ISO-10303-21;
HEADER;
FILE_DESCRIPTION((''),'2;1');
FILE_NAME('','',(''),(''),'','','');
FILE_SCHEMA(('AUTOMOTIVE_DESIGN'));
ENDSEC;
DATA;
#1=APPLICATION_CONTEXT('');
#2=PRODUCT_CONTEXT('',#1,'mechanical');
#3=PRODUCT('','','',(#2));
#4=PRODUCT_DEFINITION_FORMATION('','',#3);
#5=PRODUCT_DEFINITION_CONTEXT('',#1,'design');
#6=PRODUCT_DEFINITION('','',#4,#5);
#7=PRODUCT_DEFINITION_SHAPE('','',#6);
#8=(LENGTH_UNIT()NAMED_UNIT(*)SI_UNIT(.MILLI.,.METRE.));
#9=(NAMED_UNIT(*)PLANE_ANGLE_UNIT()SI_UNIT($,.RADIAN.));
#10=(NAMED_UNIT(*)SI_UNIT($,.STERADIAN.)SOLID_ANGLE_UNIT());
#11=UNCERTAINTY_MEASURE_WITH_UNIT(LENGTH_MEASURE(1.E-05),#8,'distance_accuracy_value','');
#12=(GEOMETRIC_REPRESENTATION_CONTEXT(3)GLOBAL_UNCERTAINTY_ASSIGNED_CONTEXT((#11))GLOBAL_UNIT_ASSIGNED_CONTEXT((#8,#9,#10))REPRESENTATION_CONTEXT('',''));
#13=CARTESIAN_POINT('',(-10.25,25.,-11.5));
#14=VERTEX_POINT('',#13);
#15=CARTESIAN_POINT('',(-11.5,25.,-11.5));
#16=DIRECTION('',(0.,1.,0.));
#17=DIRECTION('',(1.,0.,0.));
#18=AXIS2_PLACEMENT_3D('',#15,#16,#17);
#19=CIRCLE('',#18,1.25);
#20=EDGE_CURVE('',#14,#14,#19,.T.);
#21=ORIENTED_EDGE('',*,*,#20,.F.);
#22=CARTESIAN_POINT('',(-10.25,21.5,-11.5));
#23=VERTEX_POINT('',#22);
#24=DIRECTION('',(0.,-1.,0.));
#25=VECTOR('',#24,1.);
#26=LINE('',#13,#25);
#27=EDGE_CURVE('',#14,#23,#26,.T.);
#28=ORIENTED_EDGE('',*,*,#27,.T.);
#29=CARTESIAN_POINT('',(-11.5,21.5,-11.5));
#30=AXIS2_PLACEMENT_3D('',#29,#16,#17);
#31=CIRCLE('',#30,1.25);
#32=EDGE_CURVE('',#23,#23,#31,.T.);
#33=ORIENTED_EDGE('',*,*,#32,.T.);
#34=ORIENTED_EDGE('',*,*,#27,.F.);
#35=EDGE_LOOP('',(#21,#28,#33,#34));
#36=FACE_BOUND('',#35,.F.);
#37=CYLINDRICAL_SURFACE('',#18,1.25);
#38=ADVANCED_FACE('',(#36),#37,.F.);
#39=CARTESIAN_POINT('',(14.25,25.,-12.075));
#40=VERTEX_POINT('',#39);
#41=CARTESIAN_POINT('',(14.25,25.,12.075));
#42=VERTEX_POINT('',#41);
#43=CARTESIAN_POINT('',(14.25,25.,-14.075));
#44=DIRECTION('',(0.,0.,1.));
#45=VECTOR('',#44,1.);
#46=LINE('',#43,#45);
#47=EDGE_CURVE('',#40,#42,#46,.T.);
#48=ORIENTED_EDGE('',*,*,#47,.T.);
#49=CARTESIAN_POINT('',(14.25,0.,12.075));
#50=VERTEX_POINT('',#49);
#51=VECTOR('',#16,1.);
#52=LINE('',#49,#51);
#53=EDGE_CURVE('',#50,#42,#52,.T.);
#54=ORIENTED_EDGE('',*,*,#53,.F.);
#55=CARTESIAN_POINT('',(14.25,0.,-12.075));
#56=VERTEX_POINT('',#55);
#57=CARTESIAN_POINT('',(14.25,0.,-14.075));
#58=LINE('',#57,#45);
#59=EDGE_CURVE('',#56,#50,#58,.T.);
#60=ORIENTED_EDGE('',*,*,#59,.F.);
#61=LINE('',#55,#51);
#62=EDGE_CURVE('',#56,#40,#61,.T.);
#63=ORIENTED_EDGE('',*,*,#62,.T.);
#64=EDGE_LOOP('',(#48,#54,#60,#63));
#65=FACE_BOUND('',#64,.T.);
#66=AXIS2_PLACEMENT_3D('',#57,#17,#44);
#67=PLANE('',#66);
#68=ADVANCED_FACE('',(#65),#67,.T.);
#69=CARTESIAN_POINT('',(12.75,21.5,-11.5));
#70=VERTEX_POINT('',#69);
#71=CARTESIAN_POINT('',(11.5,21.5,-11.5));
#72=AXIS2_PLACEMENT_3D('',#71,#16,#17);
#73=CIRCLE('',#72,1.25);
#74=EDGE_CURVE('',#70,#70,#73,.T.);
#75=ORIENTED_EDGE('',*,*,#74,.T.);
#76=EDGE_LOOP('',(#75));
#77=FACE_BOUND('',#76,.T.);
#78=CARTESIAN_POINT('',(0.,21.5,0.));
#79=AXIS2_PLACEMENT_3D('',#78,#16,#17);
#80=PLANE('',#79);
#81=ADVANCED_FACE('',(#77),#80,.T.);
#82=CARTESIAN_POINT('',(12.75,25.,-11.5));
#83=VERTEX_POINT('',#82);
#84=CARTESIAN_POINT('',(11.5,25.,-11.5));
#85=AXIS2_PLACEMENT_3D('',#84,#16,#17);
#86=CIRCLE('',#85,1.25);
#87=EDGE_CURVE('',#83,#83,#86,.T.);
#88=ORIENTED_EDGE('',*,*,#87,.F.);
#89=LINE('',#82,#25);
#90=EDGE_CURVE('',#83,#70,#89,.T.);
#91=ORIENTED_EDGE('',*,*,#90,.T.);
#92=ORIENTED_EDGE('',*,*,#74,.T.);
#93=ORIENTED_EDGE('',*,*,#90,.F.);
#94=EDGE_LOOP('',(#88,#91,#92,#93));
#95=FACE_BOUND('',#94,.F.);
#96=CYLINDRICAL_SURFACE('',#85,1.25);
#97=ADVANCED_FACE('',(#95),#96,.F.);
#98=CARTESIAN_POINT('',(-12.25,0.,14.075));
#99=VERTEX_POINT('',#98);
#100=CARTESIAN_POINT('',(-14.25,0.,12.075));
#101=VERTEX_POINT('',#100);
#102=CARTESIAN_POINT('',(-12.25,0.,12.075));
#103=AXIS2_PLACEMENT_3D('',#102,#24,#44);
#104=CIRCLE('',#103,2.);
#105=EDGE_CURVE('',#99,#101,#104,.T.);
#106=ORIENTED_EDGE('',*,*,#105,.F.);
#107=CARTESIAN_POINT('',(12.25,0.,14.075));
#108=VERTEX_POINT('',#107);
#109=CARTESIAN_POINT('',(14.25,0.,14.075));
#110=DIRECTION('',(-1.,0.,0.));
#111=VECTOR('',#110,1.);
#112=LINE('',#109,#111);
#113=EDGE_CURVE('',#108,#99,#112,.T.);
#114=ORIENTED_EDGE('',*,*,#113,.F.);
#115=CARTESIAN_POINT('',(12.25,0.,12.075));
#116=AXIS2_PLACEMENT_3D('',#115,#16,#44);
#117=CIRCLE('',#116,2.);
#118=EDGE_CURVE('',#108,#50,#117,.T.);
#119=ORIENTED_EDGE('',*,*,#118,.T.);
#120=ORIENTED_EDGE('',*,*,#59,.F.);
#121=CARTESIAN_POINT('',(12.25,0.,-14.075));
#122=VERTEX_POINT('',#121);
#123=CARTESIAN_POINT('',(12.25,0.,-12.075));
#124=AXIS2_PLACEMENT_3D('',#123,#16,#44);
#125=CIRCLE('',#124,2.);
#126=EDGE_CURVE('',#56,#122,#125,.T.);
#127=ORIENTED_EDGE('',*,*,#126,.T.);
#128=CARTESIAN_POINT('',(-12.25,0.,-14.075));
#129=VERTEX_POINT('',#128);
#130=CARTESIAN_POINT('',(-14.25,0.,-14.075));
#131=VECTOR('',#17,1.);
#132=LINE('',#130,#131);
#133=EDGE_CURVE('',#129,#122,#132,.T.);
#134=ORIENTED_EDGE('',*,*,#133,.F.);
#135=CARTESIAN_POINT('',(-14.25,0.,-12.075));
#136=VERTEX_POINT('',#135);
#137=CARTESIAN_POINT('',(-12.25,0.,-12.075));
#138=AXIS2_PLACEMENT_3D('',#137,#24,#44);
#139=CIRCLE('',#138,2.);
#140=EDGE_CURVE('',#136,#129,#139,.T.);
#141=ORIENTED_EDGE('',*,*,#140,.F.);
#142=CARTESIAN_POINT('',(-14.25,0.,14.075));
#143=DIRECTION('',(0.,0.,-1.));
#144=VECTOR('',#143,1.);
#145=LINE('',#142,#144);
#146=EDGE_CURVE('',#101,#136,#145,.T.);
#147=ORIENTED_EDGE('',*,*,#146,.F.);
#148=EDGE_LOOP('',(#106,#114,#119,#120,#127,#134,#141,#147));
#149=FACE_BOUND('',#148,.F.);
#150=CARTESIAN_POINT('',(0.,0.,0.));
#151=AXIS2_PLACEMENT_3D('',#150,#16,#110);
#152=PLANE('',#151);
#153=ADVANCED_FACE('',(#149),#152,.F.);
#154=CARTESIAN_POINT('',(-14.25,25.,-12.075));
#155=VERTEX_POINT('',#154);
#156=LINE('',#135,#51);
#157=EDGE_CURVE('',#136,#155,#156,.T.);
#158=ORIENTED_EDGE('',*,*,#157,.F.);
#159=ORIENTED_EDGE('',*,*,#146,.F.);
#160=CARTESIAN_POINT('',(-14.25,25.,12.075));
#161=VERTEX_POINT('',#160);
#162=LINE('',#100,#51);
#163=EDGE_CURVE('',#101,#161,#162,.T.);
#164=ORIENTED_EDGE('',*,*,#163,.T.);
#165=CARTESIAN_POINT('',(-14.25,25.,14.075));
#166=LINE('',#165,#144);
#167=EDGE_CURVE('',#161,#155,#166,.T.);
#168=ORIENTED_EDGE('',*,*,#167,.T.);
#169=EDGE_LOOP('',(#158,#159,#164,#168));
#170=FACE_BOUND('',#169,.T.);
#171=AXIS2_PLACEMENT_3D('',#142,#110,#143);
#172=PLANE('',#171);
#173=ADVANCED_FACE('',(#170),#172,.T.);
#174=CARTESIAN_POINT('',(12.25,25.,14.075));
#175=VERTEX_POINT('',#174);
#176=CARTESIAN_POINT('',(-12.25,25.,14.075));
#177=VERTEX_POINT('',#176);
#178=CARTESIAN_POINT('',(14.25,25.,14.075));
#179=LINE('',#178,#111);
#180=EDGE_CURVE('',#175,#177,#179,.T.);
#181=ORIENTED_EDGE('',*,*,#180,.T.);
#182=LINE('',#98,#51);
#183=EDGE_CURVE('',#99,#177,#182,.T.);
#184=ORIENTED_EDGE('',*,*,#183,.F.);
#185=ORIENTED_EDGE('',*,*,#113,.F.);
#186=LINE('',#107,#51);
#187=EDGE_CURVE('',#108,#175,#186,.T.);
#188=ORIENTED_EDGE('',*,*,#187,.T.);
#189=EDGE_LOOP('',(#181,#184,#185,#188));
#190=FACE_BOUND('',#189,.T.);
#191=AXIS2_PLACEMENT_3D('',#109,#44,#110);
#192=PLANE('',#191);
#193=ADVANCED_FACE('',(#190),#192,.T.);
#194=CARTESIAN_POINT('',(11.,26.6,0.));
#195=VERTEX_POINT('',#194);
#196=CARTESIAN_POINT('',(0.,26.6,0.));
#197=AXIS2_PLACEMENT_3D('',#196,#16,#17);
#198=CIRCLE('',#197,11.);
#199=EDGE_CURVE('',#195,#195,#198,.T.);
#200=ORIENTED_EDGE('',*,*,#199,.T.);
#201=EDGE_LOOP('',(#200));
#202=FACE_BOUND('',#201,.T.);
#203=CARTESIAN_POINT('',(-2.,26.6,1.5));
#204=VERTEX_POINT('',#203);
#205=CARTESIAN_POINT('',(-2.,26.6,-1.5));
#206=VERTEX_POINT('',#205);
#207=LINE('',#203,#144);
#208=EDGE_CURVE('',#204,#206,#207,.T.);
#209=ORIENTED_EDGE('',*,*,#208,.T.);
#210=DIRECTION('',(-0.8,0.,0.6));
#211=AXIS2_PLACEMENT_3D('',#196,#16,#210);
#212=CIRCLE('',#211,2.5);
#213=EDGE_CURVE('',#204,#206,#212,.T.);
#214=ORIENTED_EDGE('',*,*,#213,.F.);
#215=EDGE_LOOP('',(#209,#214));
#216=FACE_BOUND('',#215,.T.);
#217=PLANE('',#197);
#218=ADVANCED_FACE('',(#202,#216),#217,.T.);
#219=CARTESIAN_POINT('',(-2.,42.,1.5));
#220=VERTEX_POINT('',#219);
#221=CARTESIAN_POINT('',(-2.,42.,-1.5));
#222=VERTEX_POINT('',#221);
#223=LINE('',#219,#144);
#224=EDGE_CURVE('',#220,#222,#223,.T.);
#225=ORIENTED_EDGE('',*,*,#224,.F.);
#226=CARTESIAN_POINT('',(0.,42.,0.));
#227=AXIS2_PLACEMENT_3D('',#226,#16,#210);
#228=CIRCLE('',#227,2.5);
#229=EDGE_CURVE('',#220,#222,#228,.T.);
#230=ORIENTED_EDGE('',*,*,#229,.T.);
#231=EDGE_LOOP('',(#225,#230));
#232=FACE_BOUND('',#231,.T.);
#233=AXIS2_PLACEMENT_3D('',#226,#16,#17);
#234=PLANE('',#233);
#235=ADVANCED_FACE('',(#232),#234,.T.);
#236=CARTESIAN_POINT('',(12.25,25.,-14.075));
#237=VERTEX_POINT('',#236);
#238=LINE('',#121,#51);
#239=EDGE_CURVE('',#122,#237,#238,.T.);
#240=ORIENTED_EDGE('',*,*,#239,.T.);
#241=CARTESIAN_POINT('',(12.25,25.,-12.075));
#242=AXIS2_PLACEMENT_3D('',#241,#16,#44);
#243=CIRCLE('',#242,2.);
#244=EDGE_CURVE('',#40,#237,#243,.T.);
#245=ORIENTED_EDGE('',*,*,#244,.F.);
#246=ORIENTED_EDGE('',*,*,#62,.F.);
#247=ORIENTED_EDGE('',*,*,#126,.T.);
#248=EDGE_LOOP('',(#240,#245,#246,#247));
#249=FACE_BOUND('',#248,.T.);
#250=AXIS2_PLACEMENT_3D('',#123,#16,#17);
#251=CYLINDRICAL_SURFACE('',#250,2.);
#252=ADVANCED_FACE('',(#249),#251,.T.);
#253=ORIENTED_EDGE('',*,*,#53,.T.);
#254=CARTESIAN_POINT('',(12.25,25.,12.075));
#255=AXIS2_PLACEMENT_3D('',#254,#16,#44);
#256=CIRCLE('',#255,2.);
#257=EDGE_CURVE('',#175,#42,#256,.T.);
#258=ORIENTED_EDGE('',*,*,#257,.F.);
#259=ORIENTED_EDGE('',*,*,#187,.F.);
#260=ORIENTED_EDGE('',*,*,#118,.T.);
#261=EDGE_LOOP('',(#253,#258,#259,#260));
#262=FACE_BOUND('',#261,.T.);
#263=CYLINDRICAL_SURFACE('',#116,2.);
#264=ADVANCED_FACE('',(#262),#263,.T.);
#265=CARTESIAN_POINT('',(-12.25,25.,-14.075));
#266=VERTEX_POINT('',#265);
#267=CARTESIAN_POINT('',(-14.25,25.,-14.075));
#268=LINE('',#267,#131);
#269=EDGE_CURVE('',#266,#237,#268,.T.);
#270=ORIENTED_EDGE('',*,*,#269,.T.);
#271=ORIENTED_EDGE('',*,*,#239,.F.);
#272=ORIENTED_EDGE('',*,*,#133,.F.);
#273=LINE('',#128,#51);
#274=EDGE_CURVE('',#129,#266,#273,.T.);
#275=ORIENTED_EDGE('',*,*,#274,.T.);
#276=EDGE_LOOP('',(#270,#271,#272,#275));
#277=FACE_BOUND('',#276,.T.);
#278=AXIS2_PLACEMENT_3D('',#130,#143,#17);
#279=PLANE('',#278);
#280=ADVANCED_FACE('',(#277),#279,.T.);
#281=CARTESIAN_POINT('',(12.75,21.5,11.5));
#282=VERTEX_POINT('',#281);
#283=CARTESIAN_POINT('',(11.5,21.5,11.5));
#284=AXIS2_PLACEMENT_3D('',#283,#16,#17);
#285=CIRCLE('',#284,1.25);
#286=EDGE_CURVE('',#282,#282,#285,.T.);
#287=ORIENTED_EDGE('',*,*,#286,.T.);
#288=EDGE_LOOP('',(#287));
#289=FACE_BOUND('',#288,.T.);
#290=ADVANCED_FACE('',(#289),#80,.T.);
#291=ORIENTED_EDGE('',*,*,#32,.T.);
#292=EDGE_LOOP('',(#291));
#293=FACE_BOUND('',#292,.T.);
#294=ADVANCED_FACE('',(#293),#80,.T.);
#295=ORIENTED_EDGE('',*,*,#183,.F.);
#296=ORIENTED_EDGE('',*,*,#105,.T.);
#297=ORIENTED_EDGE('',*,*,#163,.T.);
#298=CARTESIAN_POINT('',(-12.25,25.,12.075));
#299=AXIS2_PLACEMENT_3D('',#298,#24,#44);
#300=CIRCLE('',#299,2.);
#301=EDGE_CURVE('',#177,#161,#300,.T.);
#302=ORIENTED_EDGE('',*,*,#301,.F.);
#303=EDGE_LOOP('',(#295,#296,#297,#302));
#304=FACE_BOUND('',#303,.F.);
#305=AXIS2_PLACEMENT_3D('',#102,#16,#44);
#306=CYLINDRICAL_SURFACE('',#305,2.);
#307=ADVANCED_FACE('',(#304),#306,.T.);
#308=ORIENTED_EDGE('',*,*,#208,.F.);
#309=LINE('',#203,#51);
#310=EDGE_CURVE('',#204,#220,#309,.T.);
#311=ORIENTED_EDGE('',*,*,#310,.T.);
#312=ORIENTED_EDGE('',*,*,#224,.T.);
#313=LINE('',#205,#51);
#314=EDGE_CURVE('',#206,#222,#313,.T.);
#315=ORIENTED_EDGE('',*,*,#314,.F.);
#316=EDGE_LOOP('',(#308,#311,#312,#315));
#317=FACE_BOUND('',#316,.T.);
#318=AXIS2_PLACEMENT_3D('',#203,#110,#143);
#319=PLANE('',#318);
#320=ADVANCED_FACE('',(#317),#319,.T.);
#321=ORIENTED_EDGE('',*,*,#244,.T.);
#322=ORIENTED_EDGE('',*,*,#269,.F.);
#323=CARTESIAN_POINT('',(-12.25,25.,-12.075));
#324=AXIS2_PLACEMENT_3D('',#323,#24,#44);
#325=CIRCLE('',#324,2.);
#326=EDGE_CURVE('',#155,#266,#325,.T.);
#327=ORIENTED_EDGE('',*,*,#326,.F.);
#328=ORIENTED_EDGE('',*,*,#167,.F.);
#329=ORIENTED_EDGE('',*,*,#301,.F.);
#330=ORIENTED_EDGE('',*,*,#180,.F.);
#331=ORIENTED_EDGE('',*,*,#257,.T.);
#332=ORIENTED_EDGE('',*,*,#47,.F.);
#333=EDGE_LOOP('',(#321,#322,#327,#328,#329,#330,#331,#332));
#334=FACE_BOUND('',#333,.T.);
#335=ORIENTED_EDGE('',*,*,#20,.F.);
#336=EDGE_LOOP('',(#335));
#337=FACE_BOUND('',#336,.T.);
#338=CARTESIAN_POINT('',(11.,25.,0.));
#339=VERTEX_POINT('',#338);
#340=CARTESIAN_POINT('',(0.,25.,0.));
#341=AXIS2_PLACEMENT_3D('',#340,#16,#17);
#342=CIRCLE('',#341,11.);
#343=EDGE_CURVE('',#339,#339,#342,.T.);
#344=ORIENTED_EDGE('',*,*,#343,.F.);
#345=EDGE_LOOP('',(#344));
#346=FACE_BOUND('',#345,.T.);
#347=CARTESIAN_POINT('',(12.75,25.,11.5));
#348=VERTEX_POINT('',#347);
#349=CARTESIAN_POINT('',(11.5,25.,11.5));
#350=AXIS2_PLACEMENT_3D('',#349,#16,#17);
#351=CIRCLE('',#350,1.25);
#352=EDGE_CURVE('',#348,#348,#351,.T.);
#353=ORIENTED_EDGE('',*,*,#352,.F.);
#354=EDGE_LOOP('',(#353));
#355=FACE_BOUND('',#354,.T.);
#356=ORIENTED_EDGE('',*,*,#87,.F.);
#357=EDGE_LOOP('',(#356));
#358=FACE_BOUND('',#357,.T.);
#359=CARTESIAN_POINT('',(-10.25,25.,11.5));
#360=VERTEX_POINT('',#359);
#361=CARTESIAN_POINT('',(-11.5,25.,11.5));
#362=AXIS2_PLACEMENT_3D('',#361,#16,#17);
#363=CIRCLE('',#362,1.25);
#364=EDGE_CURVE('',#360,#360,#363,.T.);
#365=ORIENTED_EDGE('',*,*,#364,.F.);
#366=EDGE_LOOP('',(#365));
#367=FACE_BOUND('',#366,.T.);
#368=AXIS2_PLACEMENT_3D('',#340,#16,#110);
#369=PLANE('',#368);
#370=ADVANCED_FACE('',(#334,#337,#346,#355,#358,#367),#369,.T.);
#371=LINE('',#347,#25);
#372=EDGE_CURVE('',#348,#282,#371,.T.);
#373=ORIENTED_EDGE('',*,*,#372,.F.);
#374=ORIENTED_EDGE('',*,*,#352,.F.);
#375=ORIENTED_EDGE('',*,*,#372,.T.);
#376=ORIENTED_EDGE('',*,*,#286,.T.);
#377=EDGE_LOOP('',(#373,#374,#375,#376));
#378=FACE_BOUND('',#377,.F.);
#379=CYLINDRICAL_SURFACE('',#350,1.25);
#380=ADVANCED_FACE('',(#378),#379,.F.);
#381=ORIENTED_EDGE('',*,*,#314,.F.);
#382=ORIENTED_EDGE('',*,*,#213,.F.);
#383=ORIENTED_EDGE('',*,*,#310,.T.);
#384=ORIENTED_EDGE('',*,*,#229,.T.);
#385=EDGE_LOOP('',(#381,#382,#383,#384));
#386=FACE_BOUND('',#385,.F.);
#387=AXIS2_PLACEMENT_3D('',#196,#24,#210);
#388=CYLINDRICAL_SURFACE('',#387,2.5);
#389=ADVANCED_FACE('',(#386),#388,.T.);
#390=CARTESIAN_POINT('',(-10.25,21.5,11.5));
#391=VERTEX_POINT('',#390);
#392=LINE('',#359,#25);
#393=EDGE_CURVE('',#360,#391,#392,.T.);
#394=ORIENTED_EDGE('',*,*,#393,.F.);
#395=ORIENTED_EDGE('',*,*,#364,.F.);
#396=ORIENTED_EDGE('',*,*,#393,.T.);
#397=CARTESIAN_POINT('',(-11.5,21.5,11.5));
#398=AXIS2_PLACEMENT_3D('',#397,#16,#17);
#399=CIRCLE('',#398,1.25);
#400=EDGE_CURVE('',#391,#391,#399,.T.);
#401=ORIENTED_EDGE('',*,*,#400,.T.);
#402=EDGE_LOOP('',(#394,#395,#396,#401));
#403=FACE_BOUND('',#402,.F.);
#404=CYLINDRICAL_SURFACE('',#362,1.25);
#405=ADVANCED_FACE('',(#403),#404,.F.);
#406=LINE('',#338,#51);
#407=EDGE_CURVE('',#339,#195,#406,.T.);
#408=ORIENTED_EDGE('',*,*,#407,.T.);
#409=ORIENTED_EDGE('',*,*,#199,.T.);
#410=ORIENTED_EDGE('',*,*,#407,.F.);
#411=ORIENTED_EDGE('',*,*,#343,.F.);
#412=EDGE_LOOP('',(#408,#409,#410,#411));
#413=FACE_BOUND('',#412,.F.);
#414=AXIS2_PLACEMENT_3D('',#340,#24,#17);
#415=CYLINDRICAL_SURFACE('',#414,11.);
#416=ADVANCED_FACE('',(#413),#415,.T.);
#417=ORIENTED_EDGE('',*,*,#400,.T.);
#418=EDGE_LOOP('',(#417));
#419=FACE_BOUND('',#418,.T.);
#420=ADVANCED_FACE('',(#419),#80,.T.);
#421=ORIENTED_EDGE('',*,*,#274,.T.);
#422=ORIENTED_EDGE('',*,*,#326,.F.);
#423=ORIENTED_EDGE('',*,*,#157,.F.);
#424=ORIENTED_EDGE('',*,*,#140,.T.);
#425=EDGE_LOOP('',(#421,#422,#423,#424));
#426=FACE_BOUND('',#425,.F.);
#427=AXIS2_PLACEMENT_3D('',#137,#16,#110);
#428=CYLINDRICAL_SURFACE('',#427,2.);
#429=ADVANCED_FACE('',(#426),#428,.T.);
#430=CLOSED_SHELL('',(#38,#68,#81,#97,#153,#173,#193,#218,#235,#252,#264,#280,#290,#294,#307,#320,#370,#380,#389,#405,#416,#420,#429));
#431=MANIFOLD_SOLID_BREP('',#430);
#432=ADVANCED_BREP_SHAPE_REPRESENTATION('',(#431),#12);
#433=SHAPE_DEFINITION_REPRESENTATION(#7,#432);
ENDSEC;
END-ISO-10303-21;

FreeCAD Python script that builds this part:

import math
import FreeCAD as App
import Part
import Sketcher
from FreeCAD import Vector


def edges_at(feature, points):
    """Names of the edges that pass closest to the given points."""
    edges = feature.Shape.Edges
    near = lambda p: min(range(len(edges)), key=lambda i: edges[i].distToShape(Part.Vertex(*p))[0])
    return sorted({f"Edge{near(p) + 1}" for p in points})


def add_polygon(sketch, points):
    """Adds a closed chain of lines whose ends are joined by coincident constraints."""
    first, n = sketch.GeometryCount, len(points)
    for a, b in zip(points, points[1:] + points[:1]):
        sketch.addGeometry(Part.LineSegment(App.Vector(*a, 0), App.Vector(*b, 0)), False)
    for i in range(n):
        sketch.addConstraint(Sketcher.Constraint("Coincident", first + i, 2, first + (i + 1) % n, 1))

doc = App.newDocument("Part")
params = doc.addObject("Spreadsheet::Sheet", "Params")
for row, (alias, value) in enumerate([
    ("sketch1_width", "28.5 mm"),
    ("sketch1_height", "28.15 mm"),
    ("pad1_length", "25 mm"),
    ("sketch2_diameter", "22 mm"),
    ("pad2_length", "1.6 mm"),
    ("sketch3_radius", "2.5 mm"),
    ("pad3_length", "15.4 mm"),
    ("sketch4_diameter", "2.5 mm"),
    ("pocket1_length", "3.5 mm"),
    ("fillet_radius", "2 mm"),
], start=1):
    params.set(f"A{row}", alias)
    params.set(f"B{row}", "=" + value)
    params.setAlias(f"B{row}", alias)

body = doc.addObject("PartDesign::Body", "Body")

# Sketch on XZ plane
sketch1 = doc.addObject("Sketcher::SketchObject", "Sketch")
body.addObject(sketch1)
sketch1.AttachmentSupport = (doc.XZ_Plane, [""])
sketch1.MapMode = "FlatFace"
add_polygon(sketch1, [(-14.25, 14.075), (14.25, 14.075), (14.25, -14.075), (-14.25, -14.075)])  # lines 0-3
sketch1.addConstraint([
    Sketcher.Constraint("Horizontal", 0),
    Sketcher.Constraint("Vertical", 1),
    Sketcher.Constraint("Horizontal", 2),
    Sketcher.Constraint("Vertical", 3),
    Sketcher.Constraint("Symmetric", 0, 2, 2, 2, -1, 1),
    Sketcher.Constraint("DistanceX", 0, 1, 0, 2, 28.5),
    Sketcher.Constraint("DistanceY", 1, 2, 1, 1, 28.15),
])
sketch1.setExpression("Constraints[9]", "Params.sketch1_width")
sketch1.setExpression("Constraints[10]", "Params.sketch1_height")
pad1 = doc.addObject("PartDesign::Pad", "Pad")
body.addObject(pad1)
pad1.Profile = sketch1
pad1.setExpression("Length", "Params.pad1_length")
pad1.Reversed = True

# Sketch on XZ plane
sketch2 = doc.addObject("Sketcher::SketchObject", "Sketch001")
body.addObject(sketch2)
sketch2.AttachmentSupport = (doc.XZ_Plane, [""])
sketch2.MapMode = "FlatFace"
sketch2.AttachmentOffset = App.Placement(Vector(0, 0, -25), App.Rotation())
sketch2.addGeometry(Part.Circle(Vector(0, 0, 0), Vector(0, 0, 1), 11), False)
sketch2.addConstraint([
    Sketcher.Constraint("Coincident", 0, 3, -1, 1),
    Sketcher.Constraint("Diameter", 0, 22.0),
])
sketch2.setExpression("Constraints[1]", "Params.sketch2_diameter")
pad2 = doc.addObject("PartDesign::Pad", "Pad001")
body.addObject(pad2)
pad2.Profile = sketch2
pad2.setExpression("Length", "Params.pad2_length")
pad2.Reversed = True

# Sketch on XZ plane
sketch3 = doc.addObject("Sketcher::SketchObject", "Sketch002")
body.addObject(sketch3)
sketch3.AttachmentSupport = (doc.XZ_Plane, [""])
sketch3.MapMode = "FlatFace"
sketch3.AttachmentOffset = App.Placement(Vector(0, 0, -26.6), App.Rotation())
sketch3.addGeometry([
    Part.LineSegment(Vector(-2, -1.5, 0), Vector(-2, 1.5, 0)),
    Part.ArcOfCircle(Part.Circle(Vector(0, 0, 0), Vector(0, 0, 1), 2.5), math.radians(-143.130102), math.radians(143.130102)),
], False)
sketch3.addConstraint([
    Sketcher.Constraint("Coincident", 0, 1, 1, 1),
    Sketcher.Constraint("Coincident", 1, 2, 0, 2),
    Sketcher.Constraint("Vertical", 0),
    Sketcher.Constraint("Coincident", 1, 3, -1, 1),
    Sketcher.Constraint("Radius", 1, 2.5),
    Sketcher.Constraint("DistanceX", 0, 1, -1, 1, 2.0),
])
sketch3.setExpression("Constraints[4]", "Params.sketch3_radius")
pad3 = doc.addObject("PartDesign::Pad", "Pad002")
body.addObject(pad3)
pad3.Profile = sketch3
pad3.setExpression("Length", "Params.pad3_length")
pad3.Reversed = True

# Sketch on XZ plane
sketch4 = doc.addObject("Sketcher::SketchObject", "Sketch003")
body.addObject(sketch4)
sketch4.AttachmentSupport = (doc.XZ_Plane, [""])
sketch4.MapMode = "FlatFace"
sketch4.AttachmentOffset = App.Placement(Vector(0, 0, -25), App.Rotation())
sketch4.addGeometry([
    Part.Circle(Vector(-11.5, -11.5, 0), Vector(0, 0, 1), 1.25),
    Part.Circle(Vector(-11.5, 11.5, 0), Vector(0, 0, 1), 1.25),
    Part.Circle(Vector(11.5, 11.5, 0), Vector(0, 0, 1), 1.25),
    Part.Circle(Vector(11.5, -11.5, 0), Vector(0, 0, 1), 1.25),
], False)
sketch4.addConstraint([
    Sketcher.Constraint("Equal", 0, 1),
    Sketcher.Constraint("Equal", 1, 2),
    Sketcher.Constraint("Equal", 2, 3),
    Sketcher.Constraint("Symmetric", 0, 3, 2, 3, -1, 1),
    Sketcher.Constraint("Symmetric", 1, 3, 3, 3, -1, 1),
    Sketcher.Constraint("Symmetric", 1, 3, 2, 3, -2),
    Sketcher.Constraint("Diameter", 0, 2.5),
    Sketcher.Constraint("DistanceY", 0, 3, 1, 3, 23.0),
    Sketcher.Constraint("DistanceX", 1, 3, 2, 3, 23.0),
])
sketch4.setExpression("Constraints[6]", "Params.sketch4_diameter")
pocket1 = doc.addObject("PartDesign::Pocket", "Pocket")
body.addObject(pocket1)
pocket1.Profile = sketch4
pocket1.setExpression("Length", "Params.pocket1_length")
pocket1.Reversed = True
doc.recompute()

fillet = doc.addObject("PartDesign::Fillet", "Fillet")
body.addObject(fillet)
fillet.Base = (pocket1, edges_at(pocket1, [
    (14.25, 12.5, 14.075),
    (14.25, 12.5, -14.075),
    (-14.25, 12.5, 14.075),
    (-14.25, 12.5, -14.075),
]))
fillet.setExpression("Radius", "Params.fillet_radius")

doc.recompute()
